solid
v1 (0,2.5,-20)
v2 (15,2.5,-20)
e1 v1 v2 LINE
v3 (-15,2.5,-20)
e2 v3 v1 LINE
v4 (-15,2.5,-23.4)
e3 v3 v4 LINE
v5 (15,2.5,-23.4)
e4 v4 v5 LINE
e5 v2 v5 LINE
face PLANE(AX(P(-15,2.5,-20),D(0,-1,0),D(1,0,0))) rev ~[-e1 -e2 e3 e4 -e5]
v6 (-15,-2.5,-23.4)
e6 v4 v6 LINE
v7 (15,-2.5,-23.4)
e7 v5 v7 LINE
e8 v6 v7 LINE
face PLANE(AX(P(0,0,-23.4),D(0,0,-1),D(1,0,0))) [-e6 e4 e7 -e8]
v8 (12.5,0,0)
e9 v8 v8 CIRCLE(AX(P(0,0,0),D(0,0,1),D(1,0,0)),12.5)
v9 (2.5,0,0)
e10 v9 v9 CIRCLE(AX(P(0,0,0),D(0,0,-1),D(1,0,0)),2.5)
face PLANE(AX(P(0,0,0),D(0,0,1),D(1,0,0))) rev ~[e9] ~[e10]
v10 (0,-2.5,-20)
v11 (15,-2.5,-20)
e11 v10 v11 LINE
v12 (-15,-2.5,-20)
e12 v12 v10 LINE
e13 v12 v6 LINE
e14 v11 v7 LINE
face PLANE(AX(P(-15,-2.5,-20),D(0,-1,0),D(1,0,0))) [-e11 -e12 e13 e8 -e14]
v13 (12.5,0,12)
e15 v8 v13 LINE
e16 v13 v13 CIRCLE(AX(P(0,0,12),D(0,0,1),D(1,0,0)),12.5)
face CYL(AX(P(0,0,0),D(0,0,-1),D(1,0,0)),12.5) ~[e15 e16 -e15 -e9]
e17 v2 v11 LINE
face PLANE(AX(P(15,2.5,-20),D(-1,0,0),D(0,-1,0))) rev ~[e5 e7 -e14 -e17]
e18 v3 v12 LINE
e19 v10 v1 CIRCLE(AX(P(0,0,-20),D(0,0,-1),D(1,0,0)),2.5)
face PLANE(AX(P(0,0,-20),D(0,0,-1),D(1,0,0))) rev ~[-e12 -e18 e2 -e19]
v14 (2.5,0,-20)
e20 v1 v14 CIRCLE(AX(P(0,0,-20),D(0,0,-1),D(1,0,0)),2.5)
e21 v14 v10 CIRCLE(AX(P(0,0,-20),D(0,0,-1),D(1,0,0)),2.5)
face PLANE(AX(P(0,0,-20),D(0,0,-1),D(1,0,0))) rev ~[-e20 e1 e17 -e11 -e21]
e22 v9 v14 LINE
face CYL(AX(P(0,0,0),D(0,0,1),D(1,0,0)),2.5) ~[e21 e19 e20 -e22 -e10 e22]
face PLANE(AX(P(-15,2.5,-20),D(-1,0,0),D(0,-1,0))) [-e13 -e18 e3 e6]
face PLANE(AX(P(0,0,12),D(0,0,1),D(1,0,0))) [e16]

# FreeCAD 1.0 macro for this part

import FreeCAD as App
import Part
import Sketcher
from FreeCAD import Vector


def add_polygon(sketch, points):
    """Adds a closed chain of lines whose ends are joined by coincident constraints."""
    first, n = sketch.GeometryCount, len(points)
    for a, b in zip(points, points[1:] + points[:1]):
        sketch.addGeometry(Part.LineSegment(App.Vector(*a, 0), App.Vector(*b, 0)), False)
    for i in range(n):
        sketch.addConstraint(Sketcher.Constraint("Coincident", first + i, 2, first + (i + 1) % n, 1))

doc = App.newDocument("Part")
body = doc.addObject("PartDesign::Body", "Body")

sketch1 = body.newObject("Sketcher::SketchObject", "Sketch")
sketch1.AttachmentSupport = (doc.getObject("XY_Plane"), [""])
sketch1.MapMode = "FlatFace"
sketch1.addGeometry(Part.Circle(Vector(0, 0, 0), Vector(0, 0, 1), 12), False)
sketch1.addConstraint([
    Sketcher.Constraint("Coincident", 0, 3, -1, 1),
    Sketcher.Constraint("Diameter", 0, 25.0),
])
pad1 = body.newObject("PartDesign::Pad", "Pad")
pad1.Profile = sketch1
pad1.Length = 12

sketch2 = body.newObject("Sketcher::SketchObject", "Sketch001")
sketch2.AttachmentSupport = (doc.getObject("XY_Plane"), [""])
sketch2.MapMode = "FlatFace"
sketch2.addGeometry(Part.Circle(Vector(0, 0, 0), Vector(0, 0, 1), 2.5), False)
sketch2.addConstraint([
    Sketcher.Constraint("Coincident", 0, 3, -1, 1),
    Sketcher.Constraint("Diameter", 0, 5.0),
])
pad2 = body.newObject("PartDesign::Pad", "Pad001")
pad2.Profile = sketch2
pad2.Length = 20
pad2.Reversed = True

sketch3 = body.newObject("Sketcher::SketchObject", "Sketch002")
sketch3.AttachmentSupport = (doc.getObject("XY_Plane"), [""])
sketch3.MapMode = "FlatFace"
sketch3.AttachmentOffset = App.Placement(Vector(0, 0, -20), App.Rotation())
add_polygon(sketch3, [(-15, -2), (-15, 2), (15, 2), (15, -2)])
sketch3.addConstraint([
    Sketcher.Constraint("Vertical", 0),
    Sketcher.Constraint("Horizontal", 1),
    Sketcher.Constraint("Vertical", 2),
    Sketcher.Constraint("Horizontal", 3),
    Sketcher.Constraint("Symmetric", 0, 2, 2, 2, -1, 1),
    Sketcher.Constraint("DistanceX", 1, 1, 1, 2, 30.0),
    Sketcher.Constraint("DistanceY", 0, 1, 0, 2, 5.0),
])
pad3 = body.newObject("PartDesign::Pad", "Pad002")
pad3.Profile = sketch3
pad3.Length = 3.4
pad3.Reversed = True

doc.recompute()
